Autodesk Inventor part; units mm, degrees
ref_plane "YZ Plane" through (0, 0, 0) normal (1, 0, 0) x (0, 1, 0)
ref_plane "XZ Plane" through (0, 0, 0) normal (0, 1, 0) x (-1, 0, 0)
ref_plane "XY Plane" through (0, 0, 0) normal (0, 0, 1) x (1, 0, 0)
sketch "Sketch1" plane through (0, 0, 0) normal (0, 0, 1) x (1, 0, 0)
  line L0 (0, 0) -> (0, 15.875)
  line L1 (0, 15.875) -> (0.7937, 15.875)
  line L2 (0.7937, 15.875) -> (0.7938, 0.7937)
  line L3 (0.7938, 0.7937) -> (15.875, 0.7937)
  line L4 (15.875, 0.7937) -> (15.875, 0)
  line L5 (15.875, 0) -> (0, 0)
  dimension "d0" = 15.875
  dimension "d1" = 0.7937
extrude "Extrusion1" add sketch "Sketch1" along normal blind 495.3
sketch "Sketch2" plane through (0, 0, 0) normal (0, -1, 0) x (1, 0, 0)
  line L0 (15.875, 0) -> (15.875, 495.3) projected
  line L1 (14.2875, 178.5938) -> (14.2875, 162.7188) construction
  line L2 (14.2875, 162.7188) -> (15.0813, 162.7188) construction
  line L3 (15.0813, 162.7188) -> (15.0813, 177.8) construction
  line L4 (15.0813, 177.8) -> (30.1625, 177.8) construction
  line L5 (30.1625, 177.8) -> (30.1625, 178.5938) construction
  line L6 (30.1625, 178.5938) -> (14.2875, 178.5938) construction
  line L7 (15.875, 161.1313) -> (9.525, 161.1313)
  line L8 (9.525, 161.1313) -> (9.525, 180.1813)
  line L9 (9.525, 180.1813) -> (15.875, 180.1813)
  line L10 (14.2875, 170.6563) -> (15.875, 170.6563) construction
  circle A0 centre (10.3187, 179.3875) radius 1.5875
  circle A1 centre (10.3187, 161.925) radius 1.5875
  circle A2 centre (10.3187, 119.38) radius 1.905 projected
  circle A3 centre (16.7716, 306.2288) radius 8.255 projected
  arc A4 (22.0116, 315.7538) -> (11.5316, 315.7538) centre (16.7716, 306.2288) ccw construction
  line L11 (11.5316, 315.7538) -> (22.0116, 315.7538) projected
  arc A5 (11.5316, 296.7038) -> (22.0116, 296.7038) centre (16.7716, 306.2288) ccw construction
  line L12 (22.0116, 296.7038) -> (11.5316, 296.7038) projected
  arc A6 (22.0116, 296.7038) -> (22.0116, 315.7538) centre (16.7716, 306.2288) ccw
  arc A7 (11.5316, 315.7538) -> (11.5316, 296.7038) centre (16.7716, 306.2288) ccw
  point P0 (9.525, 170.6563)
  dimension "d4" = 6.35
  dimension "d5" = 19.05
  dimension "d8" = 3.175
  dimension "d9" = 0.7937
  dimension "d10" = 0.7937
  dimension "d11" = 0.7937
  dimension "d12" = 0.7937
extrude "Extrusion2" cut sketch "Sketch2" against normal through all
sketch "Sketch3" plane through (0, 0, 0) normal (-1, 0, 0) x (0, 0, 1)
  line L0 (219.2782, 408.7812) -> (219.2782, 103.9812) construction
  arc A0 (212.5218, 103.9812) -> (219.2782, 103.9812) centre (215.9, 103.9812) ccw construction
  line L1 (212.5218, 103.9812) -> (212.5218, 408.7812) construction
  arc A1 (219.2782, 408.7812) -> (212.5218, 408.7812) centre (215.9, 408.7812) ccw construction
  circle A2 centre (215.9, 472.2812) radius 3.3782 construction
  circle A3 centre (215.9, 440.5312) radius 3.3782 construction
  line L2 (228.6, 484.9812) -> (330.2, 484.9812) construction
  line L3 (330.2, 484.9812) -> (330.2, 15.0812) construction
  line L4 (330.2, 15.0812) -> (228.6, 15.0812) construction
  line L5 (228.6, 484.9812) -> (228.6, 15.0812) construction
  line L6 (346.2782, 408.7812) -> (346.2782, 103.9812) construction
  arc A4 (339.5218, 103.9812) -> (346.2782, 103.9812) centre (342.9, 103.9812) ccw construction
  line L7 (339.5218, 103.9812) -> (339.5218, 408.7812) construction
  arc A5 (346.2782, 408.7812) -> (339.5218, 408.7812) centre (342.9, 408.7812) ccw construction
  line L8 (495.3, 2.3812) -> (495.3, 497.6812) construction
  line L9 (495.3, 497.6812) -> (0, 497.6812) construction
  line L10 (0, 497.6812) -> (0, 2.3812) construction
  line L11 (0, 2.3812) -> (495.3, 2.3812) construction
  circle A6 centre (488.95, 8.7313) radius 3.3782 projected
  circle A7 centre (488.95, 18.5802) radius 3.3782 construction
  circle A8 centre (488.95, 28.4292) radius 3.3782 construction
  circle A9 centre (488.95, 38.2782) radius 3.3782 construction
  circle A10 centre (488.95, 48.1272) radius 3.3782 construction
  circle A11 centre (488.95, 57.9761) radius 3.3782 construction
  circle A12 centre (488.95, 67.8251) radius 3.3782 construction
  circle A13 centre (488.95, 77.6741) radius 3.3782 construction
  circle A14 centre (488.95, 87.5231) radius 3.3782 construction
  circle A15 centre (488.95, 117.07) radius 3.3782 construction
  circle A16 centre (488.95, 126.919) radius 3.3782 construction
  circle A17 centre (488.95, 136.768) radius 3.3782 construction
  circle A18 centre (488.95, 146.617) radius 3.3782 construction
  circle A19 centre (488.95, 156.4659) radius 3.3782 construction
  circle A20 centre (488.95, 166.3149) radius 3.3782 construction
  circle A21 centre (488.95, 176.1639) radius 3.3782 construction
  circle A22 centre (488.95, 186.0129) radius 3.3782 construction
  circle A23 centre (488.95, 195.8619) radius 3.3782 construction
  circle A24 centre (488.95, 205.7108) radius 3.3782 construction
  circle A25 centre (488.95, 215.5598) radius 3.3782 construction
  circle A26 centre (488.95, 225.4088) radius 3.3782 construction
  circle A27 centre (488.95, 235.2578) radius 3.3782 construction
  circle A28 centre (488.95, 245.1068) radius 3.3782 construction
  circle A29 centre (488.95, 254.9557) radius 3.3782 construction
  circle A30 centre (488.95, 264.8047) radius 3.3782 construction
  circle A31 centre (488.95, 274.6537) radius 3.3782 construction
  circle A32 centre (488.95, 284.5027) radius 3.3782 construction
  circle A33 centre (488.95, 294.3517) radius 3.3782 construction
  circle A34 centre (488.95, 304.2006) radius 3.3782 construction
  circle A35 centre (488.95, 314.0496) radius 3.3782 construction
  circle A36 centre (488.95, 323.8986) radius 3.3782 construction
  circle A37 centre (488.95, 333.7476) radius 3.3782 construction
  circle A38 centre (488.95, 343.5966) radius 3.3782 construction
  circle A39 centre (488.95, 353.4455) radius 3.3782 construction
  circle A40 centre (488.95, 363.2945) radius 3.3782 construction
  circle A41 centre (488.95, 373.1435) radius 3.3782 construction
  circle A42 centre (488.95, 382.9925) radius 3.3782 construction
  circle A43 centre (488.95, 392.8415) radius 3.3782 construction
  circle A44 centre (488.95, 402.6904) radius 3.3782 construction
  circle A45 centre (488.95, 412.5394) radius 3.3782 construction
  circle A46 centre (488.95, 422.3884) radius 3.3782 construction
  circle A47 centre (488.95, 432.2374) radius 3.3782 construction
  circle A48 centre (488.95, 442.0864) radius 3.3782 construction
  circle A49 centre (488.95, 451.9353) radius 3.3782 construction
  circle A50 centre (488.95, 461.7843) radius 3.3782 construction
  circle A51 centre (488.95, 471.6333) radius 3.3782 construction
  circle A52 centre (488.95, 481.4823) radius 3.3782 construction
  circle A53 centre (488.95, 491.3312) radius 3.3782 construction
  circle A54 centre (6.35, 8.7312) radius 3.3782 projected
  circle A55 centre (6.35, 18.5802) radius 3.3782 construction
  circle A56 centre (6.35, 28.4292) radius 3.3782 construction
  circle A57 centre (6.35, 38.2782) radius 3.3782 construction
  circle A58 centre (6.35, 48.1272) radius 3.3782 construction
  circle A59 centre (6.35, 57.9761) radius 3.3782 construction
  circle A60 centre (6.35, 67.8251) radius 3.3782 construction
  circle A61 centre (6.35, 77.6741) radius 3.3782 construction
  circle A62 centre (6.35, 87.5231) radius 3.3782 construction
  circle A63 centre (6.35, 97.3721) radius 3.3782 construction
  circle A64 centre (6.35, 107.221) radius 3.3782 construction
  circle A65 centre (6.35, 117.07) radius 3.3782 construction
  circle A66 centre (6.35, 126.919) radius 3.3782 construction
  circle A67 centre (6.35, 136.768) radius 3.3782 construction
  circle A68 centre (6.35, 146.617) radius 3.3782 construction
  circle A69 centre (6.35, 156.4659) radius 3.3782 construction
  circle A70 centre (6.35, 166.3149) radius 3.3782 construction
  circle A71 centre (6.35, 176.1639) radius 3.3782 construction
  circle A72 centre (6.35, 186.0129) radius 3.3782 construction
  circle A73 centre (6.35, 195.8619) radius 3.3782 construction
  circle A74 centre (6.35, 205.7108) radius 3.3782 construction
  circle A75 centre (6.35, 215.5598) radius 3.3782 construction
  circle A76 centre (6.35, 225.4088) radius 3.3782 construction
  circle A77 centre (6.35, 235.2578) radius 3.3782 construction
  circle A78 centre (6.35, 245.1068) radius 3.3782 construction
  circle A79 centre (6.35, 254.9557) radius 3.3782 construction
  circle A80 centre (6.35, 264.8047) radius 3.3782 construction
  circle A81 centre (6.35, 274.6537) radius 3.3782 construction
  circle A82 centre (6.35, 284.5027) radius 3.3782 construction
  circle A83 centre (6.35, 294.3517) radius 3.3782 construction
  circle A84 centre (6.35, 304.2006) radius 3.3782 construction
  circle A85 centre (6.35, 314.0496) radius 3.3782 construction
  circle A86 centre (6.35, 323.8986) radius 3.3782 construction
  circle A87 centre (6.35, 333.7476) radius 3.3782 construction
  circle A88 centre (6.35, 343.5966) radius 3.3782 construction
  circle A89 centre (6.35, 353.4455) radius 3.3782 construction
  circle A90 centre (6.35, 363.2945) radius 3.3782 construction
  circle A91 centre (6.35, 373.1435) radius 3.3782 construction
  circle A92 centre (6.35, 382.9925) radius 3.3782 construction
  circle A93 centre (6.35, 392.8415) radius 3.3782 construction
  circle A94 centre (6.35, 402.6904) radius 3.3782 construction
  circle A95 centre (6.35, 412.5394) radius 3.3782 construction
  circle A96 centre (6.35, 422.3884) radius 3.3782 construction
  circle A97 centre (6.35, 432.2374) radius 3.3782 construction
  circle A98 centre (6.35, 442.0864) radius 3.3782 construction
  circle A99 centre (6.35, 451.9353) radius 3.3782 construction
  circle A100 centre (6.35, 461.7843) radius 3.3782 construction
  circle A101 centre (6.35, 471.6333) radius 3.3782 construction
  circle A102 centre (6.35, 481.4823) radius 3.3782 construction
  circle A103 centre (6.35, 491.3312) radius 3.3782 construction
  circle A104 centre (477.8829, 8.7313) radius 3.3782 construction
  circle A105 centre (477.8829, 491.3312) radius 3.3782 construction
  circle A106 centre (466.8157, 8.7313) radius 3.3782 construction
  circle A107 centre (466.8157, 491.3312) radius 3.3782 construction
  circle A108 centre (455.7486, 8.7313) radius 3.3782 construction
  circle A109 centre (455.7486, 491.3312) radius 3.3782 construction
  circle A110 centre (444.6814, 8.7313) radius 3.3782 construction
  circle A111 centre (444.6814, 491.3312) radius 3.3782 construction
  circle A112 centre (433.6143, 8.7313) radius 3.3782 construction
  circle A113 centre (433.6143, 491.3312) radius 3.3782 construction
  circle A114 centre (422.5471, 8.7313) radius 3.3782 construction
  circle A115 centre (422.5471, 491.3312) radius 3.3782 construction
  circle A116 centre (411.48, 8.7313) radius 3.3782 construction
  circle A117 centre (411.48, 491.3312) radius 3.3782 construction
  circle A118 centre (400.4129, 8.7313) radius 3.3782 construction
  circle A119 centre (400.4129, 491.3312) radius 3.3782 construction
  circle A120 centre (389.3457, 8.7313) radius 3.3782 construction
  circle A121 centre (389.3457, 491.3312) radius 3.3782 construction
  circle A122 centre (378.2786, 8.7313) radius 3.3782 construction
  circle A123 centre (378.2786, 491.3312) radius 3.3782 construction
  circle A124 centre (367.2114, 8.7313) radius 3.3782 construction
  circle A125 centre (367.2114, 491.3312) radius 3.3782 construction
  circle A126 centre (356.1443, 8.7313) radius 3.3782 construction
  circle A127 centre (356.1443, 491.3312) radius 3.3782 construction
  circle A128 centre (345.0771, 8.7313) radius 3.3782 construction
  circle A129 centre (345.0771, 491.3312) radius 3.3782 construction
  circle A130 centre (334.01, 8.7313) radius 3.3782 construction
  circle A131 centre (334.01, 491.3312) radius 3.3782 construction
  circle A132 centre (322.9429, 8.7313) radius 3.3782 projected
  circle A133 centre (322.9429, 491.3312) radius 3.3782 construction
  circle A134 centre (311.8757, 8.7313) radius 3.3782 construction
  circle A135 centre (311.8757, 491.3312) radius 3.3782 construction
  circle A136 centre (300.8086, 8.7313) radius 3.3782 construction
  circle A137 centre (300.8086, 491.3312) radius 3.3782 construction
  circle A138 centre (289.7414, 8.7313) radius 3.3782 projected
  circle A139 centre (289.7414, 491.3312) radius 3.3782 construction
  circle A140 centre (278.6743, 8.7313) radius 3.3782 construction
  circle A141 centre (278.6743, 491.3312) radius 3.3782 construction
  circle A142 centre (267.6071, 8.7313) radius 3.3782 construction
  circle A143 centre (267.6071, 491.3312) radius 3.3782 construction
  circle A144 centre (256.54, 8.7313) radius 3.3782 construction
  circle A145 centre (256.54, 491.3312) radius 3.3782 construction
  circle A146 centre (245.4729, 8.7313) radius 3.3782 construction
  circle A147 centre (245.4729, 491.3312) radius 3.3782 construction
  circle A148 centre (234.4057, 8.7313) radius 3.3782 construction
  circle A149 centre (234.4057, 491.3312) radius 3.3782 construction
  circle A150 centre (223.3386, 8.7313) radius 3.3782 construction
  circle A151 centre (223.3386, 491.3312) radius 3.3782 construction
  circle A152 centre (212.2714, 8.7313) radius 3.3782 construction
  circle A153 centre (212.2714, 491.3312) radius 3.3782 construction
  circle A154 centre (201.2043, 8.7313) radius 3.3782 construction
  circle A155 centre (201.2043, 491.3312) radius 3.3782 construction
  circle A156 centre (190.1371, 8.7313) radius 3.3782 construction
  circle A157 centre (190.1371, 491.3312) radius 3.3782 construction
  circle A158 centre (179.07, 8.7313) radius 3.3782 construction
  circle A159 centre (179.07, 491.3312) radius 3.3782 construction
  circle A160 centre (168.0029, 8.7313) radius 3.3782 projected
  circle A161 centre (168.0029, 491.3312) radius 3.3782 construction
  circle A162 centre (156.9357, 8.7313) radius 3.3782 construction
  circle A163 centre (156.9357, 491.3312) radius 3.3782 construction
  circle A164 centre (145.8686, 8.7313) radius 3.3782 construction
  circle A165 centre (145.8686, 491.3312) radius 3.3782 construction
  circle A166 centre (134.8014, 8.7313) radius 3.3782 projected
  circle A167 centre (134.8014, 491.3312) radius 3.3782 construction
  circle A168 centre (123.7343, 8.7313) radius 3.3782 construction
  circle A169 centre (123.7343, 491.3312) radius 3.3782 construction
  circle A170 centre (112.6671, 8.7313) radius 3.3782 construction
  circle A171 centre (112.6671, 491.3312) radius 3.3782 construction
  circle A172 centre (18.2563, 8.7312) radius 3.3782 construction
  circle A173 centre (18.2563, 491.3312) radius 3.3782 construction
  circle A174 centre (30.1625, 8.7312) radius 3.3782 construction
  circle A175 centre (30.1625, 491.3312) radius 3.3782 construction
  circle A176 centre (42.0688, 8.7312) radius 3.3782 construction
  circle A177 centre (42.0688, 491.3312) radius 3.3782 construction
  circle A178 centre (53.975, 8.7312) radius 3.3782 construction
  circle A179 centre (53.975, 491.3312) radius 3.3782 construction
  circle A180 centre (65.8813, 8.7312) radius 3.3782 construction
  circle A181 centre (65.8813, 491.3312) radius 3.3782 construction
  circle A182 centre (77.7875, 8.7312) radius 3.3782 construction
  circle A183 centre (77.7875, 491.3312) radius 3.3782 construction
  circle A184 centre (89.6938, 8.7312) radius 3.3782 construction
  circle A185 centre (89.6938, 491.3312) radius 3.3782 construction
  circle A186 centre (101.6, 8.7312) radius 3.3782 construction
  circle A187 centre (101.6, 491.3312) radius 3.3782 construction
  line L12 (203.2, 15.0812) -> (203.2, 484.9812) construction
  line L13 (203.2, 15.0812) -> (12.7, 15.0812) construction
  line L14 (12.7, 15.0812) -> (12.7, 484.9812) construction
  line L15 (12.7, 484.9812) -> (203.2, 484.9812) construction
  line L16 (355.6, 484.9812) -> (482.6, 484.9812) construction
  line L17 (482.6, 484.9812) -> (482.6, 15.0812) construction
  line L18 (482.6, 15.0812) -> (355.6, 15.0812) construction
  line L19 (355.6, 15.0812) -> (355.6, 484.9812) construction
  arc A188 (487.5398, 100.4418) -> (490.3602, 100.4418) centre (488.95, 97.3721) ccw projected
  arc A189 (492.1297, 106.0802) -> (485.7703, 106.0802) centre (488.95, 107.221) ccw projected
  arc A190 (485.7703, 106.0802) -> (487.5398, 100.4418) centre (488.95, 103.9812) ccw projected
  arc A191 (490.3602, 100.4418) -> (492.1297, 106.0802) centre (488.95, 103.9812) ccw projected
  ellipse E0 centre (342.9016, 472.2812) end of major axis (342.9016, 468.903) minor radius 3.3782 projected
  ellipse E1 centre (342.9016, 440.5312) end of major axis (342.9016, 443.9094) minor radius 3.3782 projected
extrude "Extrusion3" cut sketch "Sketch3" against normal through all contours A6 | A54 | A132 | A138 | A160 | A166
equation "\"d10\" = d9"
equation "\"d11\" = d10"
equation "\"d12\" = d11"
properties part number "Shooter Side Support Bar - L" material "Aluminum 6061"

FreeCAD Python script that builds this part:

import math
import FreeCAD as App
import Part
import Sketcher
Q = App.Units.Quantity

doc = App.newDocument("Part")
params = doc.addObject("Spreadsheet::Sheet", "Params")
for row, (alias, value) in enumerate([
    ("sketch1_width", "0.625 in"),
    ("sketch1_width2", "0.031248 in"),
    ("pad1_length", "19.5 in"),
    ("sketch2_radius", "0.0625 in"),
    ("sketch2_height", "0.75 in"),
    ("sketch2_diameter", "0.15 in"),
    ("sketch2_radius2", "0.428 in"),
    ("sketch2_width", "0.031248 in"),
    ("sketch3_diameter", "0.266 in"),
], start=1):
    params.set(f"A{row}", alias)
    params.set(f"B{row}", "=" + value)
    params.setAlias(f"B{row}", alias)

body = doc.addObject("PartDesign::Body", "Body")

# Sketch on XY plane
sketch1 = body.newObject("Sketcher::SketchObject", "Sketch")
sketch1.AttachmentSupport = (doc.getObject("XY_Plane"), [""])
sketch1.MapMode = "FlatFace"
sketch1.addGeometry(Part.LineSegment(App.Vector(0, 15.9, 0), App.Vector(0, 0, 0)), False)
sketch1.addGeometry(Part.LineSegment(App.Vector(0, 0, 0), App.Vector(15.9, 0, 0)), False)
sketch1.addGeometry(Part.LineSegment(App.Vector(15.9, 0, 0), App.Vector(15.9, 0.8, 0)), False)
sketch1.addGeometry(Part.LineSegment(App.Vector(15.9, 0.8, 0), App.Vector(0.8, 0.8, 0)), False)
sketch1.addGeometry(Part.LineSegment(App.Vector(0.8, 0.8, 0), App.Vector(0.8, 15.9, 0)), False)
sketch1.addGeometry(Part.LineSegment(App.Vector(0.8, 15.9, 0), App.Vector(0, 15.9, 0)), False)
sketch1.addConstraint(Sketcher.Constraint("Coincident", 0, 2, 1, 1))
sketch1.addConstraint(Sketcher.Constraint("Coincident", 1, 2, 2, 1))
sketch1.addConstraint(Sketcher.Constraint("Coincident", 2, 2, 3, 1))
sketch1.addConstraint(Sketcher.Constraint("Coincident", 3, 2, 4, 1))
sketch1.addConstraint(Sketcher.Constraint("Coincident", 4, 2, 5, 1))
sketch1.addConstraint(Sketcher.Constraint("Coincident", 5, 2, 0, 1))
sketch1.addConstraint(Sketcher.Constraint("Vertical", 0))
sketch1.addConstraint(Sketcher.Constraint("Horizontal", 1))
sketch1.addConstraint(Sketcher.Constraint("Vertical", 2))
sketch1.addConstraint(Sketcher.Constraint("Horizontal", 3))
sketch1.addConstraint(Sketcher.Constraint("Vertical", 4))
sketch1.addConstraint(Sketcher.Constraint("Horizontal", 5))
sketch1.addConstraint(Sketcher.Constraint("Coincident", 0, 2, -1, 1))
sketch1.addConstraint(Sketcher.Constraint("Equal", 1, 0))
sketch1.addConstraint(Sketcher.Constraint("Equal", 5, 2))
sketch1.addConstraint(Sketcher.Constraint("DistanceX", 1, 1, 1, 2, Q("0.625 in")))
sketch1.addConstraint(Sketcher.Constraint("DistanceX", 5, 2, 5, 1, Q("0.031248 in")))
sketch1.setExpression("Constraints[15]", "Params.sketch1_width")
sketch1.setExpression("Constraints[16]", "Params.sketch1_width2")
pad1 = body.newObject("PartDesign::Pad", "Pad")
pad1.Profile = sketch1
pad1.setExpression("Length", "Params.pad1_length")

# Sketch on XZ plane
sketch2 = body.newObject("Sketcher::SketchObject", "Sketch001")
sketch2.AttachmentSupport = (doc.getObject("XZ_Plane"), [""])
sketch2.MapMode = "FlatFace"
sketch2.addGeometry(Part.LineSegment(App.Vector(11.7, 161.1, 0), App.Vector(15.9, 161.1, 0)), False)
sketch2.addGeometry(Part.LineSegment(App.Vector(15.9, 161.1, 0), App.Vector(15.9, 180.2, 0)), False)
sketch2.addGeometry(Part.LineSegment(App.Vector(15.9, 180.2, 0), App.Vector(11.7, 180.2, 0)), False)
sketch2.addGeometry(Part.ArcOfCircle(Part.Circle(App.Vector(10.3, 179.4, 0), App.Vector(0, 0, 1), 1.6), math.radians(30), math.radians(240)), False)
sketch2.addGeometry(Part.LineSegment(App.Vector(9.5, 178, 0), App.Vector(9.5, 163.3, 0)), False)
sketch2.addGeometry(Part.ArcOfCircle(Part.Circle(App.Vector(10.3, 161.9, 0), App.Vector(0, 0, 1), 1.6), math.radians(120), math.radians(330)), False)
sketch2.addGeometry(Part.LineSegment(App.Vector(11.5, 296.7, 0), App.Vector(22, 296.7, 0)), False)
sketch2.addGeometry(Part.ArcOfCircle(Part.Circle(App.Vector(16.8, 306.2, 0), App.Vector(0, 0, 1), 10.9), math.radians(-61), math.radians(61)), False)
sketch2.addGeometry(Part.LineSegment(App.Vector(22, 315.8, 0), App.Vector(11.5, 315.8, 0)), False)
sketch2.addGeometry(Part.ArcOfCircle(Part.Circle(App.Vector(16.8, 306.2, 0), App.Vector(0, 0, 1), 10.9), math.radians(119), math.radians(241)), False)
sketch2.addGeometry(Part.Circle(App.Vector(10.3, 119.4, 0), App.Vector(0, 0, 1), 1.9), False)
sketch2.addConstraint(Sketcher.Constraint("Coincident", 0, 2, 1, 1))
sketch2.addConstraint(Sketcher.Constraint("Coincident", 1, 2, 2, 1))
sketch2.addConstraint(Sketcher.Constraint("Coincident", 2, 2, 3, 1))
sketch2.addConstraint(Sketcher.Constraint("Coincident", 3, 2, 4, 1))
sketch2.addConstraint(Sketcher.Constraint("Coincident", 4, 2, 5, 1))
sketch2.addConstraint(Sketcher.Constraint("Coincident", 5, 2, 0, 1))
sketch2.addConstraint(Sketcher.Constraint("Coincident", 6, 2, 7, 1))
sketch2.addConstraint(Sketcher.Constraint("Coincident", 7, 2, 8, 1))
sketch2.addConstraint(Sketcher.Constraint("Coincident", 8, 2, 9, 1))
sketch2.addConstraint(Sketcher.Constraint("Coincident", 9, 2, 6, 1))
sketch2.addConstraint(Sketcher.Constraint("Horizontal", 0))
sketch2.addConstraint(Sketcher.Constraint("Vertical", 1))
sketch2.addConstraint(Sketcher.Constraint("Horizontal", 2))
sketch2.addConstraint(Sketcher.Constraint("Vertical", 4))
sketch2.addConstraint(Sketcher.Constraint("Horizontal", 6))
sketch2.addConstraint(Sketcher.Constraint("Horizontal", 8))
sketch2.addConstraint(Sketcher.Constraint("Coincident", 9, 3, 7, 3))
sketch2.addConstraint(Sketcher.Constraint("Equal", 3, 5))
sketch2.addConstraint(Sketcher.Constraint("Equal", 7, 9))
sketch2.addConstraint(Sketcher.Constraint("Vertical", 3, 3, 5, 3))
sketch2.addConstraint(Sketcher.Constraint("Vertical", 5, 3, 10, 3))
sketch2.addConstraint(Sketcher.Constraint("Vertical", 2, 2, 5, 2))
sketch2.addConstraint(Sketcher.Constraint("Vertical", 6, 2, 7, 2))
sketch2.addConstraint(Sketcher.Constraint("Radius", 3, Q("0.0625 in")))
sketch2.addConstraint(Sketcher.Constraint("DistanceY", 1, 1, 1, 2, Q("0.75 in")))
sketch2.addConstraint(Sketcher.Constraint("Diameter", 10, Q("0.15 in")))
sketch2.addConstraint(Sketcher.Constraint("DistanceX", 3, 2, 1, 2, Q("0.25 in")))
sketch2.addConstraint(Sketcher.Constraint("DistanceY", 6, 2, 7, 2, Q("0.75 in")))
sketch2.addConstraint(Sketcher.Constraint("Radius", 7, Q("0.428 in")))
sketch2.addConstraint(Sketcher.Constraint("DistanceY", 0, 2, 5, 3, Q("0.031248 in")))
sketch2.addConstraint(Sketcher.Constraint("DistanceX", 3, 2, 3, 3, Q("0.031248 in")))
sketch2.addConstraint(Sketcher.Constraint("DistanceY", -1, 1, 10, 3, Q("4.7 in")))
sketch2.addConstraint(Sketcher.Constraint("DistanceX", -1, 1, 3, 3, Q("0.406248 in")))
sketch2.addConstraint(Sketcher.Constraint("DistanceY", -1, 1, 3, 3, Q("7.0625 in")))
sketch2.addConstraint(Sketcher.Constraint("DistanceX", -1, 1, 8, 2, Q("0.454 in")))
sketch2.addConstraint(Sketcher.Constraint("DistanceY", 0, 2, 7, 3, Q("5.7125 in")))
sketch2.setExpression("Constraints[23]", "Params.sketch2_radius")
sketch2.setExpression("Constraints[24]", "Params.sketch2_height")
sketch2.setExpression("Constraints[25]", "Params.sketch2_diameter")
sketch2.setExpression("Constraints[28]", "Params.sketch2_radius2")
sketch2.setExpression("Constraints[30]", "Params.sketch2_width")
pocket1 = body.newObject("PartDesign::Pocket", "Pocket")
pocket1.Profile = sketch2
pocket1.Type = "ThroughAll"

# Sketch on YZ plane
sketch3 = body.newObject("Sketcher::SketchObject", "Sketch002")
sketch3.AttachmentSupport = (doc.getObject("YZ_Plane"), [""])
sketch3.MapMode = "FlatFace"
sketch3.addGeometry(Part.Circle(App.Vector(8.7, 488.9, 0), App.Vector(0, 0, 1), 3.4), False)
sketch3.addGeometry(Part.Circle(App.Vector(8.7, 6.3, 0), App.Vector(0, 0, 1), 3.4), False)
sketch3.addGeometry(Part.Circle(App.Vector(8.7, 322.9, 0), App.Vector(0, 0, 1), 3.4), False)
sketch3.addGeometry(Part.Circle(App.Vector(8.7, 289.7, 0), App.Vector(0, 0, 1), 3.4), False)
sketch3.addGeometry(Part.Circle(App.Vector(8.7, 168, 0), App.Vector(0, 0, 1), 3.4), False)
sketch3.addGeometry(Part.Circle(App.Vector(8.7, 134.8, 0), App.Vector(0, 0, 1), 3.4), False)
sketch3.addConstraint(Sketcher.Constraint("Equal", 0, 1))
sketch3.addConstraint(Sketcher.Constraint("Equal", 1, 2))
sketch3.addConstraint(Sketcher.Constraint("Equal", 2, 3))
sketch3.addConstraint(Sketcher.Constraint("Equal", 3, 4))
sketch3.addConstraint(Sketcher.Constraint("Equal", 4, 5))
sketch3.addConstraint(Sketcher.Constraint("Vertical", 0, 3, 1, 3))
sketch3.addConstraint(Sketcher.Constraint("Vertical", 1, 3, 2, 3))
sketch3.addConstraint(Sketcher.Constraint("Vertical", 2, 3, 3, 3))
sketch3.addConstraint(Sketcher.Constraint("Vertical", 3, 3, 4, 3))
sketch3.addConstraint(Sketcher.Constraint("Vertical", 4, 3, 5, 3))
sketch3.addConstraint(Sketcher.Constraint("Diameter", 0, Q("0.266 in")))
sketch3.addConstraint(Sketcher.Constraint("DistanceY", 1, 3, 0, 3, Q("19 in")))
sketch3.addConstraint(Sketcher.Constraint("DistanceY", 4, 3, 2, 3, Q("6.1 in")))
sketch3.addConstraint(Sketcher.Constraint("DistanceY", 5, 3, 3, 3, Q("6.1 in")))
sketch3.addConstraint(Sketcher.Constraint("DistanceY", -1, 1, 0, 3, Q("19.25 in")))
sketch3.addConstraint(Sketcher.Constraint("DistanceX", -1, 1, 0, 3, Q("0.343752 in")))
sketch3.addConstraint(Sketcher.Constraint("DistanceY", -1, 1, 2, 3, Q("12.7142913 in")))
sketch3.addConstraint(Sketcher.Constraint("DistanceY", -1, 1, 3, 3, 289.7414))
sketch3.setExpression("Constraints[10]", "Params.sketch3_diameter")
pocket2 = body.newObject("PartDesign::Pocket", "Pocket001")
pocket2.Profile = sketch3
pocket2.Type = "ThroughAll"
pocket2.Reversed = True

doc.recompute()
